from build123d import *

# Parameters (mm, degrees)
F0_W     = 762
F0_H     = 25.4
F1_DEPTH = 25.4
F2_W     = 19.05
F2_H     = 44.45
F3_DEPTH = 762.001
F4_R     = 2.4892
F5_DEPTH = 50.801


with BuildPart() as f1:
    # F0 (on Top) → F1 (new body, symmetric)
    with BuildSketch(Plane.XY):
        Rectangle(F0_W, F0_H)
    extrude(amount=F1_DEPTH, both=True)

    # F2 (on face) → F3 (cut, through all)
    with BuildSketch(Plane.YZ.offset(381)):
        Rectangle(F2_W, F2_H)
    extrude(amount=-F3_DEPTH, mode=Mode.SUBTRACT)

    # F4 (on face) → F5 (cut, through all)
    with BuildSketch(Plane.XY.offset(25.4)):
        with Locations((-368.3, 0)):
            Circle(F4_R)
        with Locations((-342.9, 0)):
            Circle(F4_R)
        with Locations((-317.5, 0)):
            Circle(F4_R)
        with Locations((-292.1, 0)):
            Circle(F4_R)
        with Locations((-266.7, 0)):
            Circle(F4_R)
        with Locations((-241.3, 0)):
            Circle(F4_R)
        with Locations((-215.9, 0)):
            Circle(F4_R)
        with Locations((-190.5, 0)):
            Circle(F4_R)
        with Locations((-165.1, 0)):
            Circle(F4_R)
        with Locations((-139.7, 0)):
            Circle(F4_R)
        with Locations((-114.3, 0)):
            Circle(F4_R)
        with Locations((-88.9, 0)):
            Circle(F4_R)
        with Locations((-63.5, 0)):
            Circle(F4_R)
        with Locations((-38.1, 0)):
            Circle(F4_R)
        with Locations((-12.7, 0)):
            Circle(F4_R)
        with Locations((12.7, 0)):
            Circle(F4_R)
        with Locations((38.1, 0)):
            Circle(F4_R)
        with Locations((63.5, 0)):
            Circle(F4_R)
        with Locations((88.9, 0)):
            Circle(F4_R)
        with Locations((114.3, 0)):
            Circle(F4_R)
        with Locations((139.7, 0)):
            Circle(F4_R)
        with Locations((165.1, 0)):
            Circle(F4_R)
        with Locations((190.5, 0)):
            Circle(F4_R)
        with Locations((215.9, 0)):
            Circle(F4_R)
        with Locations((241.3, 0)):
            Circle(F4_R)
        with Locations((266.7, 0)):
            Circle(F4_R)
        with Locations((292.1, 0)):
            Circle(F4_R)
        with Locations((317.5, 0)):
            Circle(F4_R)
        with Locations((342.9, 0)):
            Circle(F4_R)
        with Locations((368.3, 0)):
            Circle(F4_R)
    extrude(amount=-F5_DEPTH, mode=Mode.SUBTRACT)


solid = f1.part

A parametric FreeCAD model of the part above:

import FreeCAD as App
import Part
import Sketcher
Q = App.Units.Quantity


def add_polygon(sketch, points):
    """Adds a closed chain of lines whose ends are joined by coincident constraints."""
    first, n = sketch.GeometryCount, len(points)
    for a, b in zip(points, points[1:] + points[:1]):
        sketch.addGeometry(Part.LineSegment(App.Vector(*a, 0), App.Vector(*b, 0)), False)
    for i in range(n):
        sketch.addConstraint(Sketcher.Constraint("Coincident", first + i, 2, first + (i + 1) % n, 1))

doc = App.newDocument("Part")
body = doc.addObject("PartDesign::Body", "Body")

sketch1 = body.newObject("Sketcher::SketchObject", "Sketch")
sketch1.AttachmentSupport = (doc.getObject("XY_Plane"), [""])
sketch1.MapMode = "FlatFace"
add_polygon(sketch1, [(-381, 13), (-381, -13), (381, -13), (381, 13)])
sketch1.addConstraint([
    Sketcher.Constraint("Vertical", 0),
    Sketcher.Constraint("Horizontal", 1),
    Sketcher.Constraint("Vertical", 2),
    Sketcher.Constraint("Horizontal", 3),
    Sketcher.Constraint("Symmetric", 0, 2, 2, 2, -1, 1),
    Sketcher.Constraint("DistanceX", 1, 1, 1, 2, Q("30 in")),
    Sketcher.Constraint("DistanceY", 0, 2, 0, 1, Q("1 in")),
])
pad1 = body.newObject("PartDesign::Pad", "Pad")
pad1.Profile = sketch1
pad1.Length = Q("2 in")
pad1.Midplane = True

sketch2 = body.newObject("Sketcher::SketchObject", "Sketch001")
sketch2.AttachmentSupport = (doc.getObject("YZ_Plane"), [""])
sketch2.MapMode = "FlatFace"
sketch2.AttachmentOffset = App.Placement(App.Vector(0, 0, 15 * 25.4), App.Rotation())
add_polygon(sketch2, [(-10, 22), (-10, -22), (10, -22), (10, 22)])
sketch2.addConstraint([
    Sketcher.Constraint("Vertical", 0),
    Sketcher.Constraint("Horizontal", 1),
    Sketcher.Constraint("Vertical", 2),
    Sketcher.Constraint("Horizontal", 3),
    Sketcher.Constraint("Symmetric", 0, 2, 2, 2, -1, 1),
    Sketcher.Constraint("DistanceX", 1, 1, 1, 2, Q("0.75 in")),
    Sketcher.Constraint("DistanceY", 0, 2, 0, 1, Q("1.75 in")),
])
pocket1 = body.newObject("PartDesign::Pocket", "Pocket")
pocket1.Profile = sketch2
pocket1.Type = "ThroughAll"

sketch3 = body.newObject("Sketcher::SketchObject", "Sketch002")
sketch3.AttachmentSupport = (doc.getObject("XY_Plane"), [""])
sketch3.MapMode = "FlatFace"
sketch3.AttachmentOffset = App.Placement(App.Vector(0, 0, 1 * 25.4), App.Rotation())
sketch3.addGeometry([
    Part.Circle(App.Vector(-368.3, 0, 0), App.Vector(0, 0, 1), 2.5),
    Part.Circle(App.Vector(-342.9, 0, 0), App.Vector(0, 0, 1), 2.5),
    Part.Circle(App.Vector(-317.5, 0, 0), App.Vector(0, 0, 1), 2.5),
    Part.Circle(App.Vector(-292.1, 0, 0), App.Vector(0, 0, 1), 2.5),
    Part.Circle(App.Vector(-266.7, 0, 0), App.Vector(0, 0, 1), 2.5),
    Part.Circle(App.Vector(-241.3, 0, 0), App.Vector(0, 0, 1), 2.5),
    Part.Circle(App.Vector(-215.9, 0, 0), App.Vector(0, 0, 1), 2.5),
    Part.Circle(App.Vector(-190.5, 0, 0), App.Vector(0, 0, 1), 2.5),
    Part.Circle(App.Vector(-165.1, 0, 0), App.Vector(0, 0, 1), 2.5),
    Part.Circle(App.Vector(-139.7, 0, 0), App.Vector(0, 0, 1), 2.5),
    Part.Circle(App.Vector(-114.3, 0, 0), App.Vector(0, 0, 1), 2.5),
    Part.Circle(App.Vector(-88.9, 0, 0), App.Vector(0, 0, 1), 2.5),
    Part.Circle(App.Vector(-63.5, 0, 0), App.Vector(0, 0, 1), 2.5),
    Part.Circle(App.Vector(-38.1, 0, 0), App.Vector(0, 0, 1), 2.5),
    Part.Circle(App.Vector(-12.7, 0, 0), App.Vector(0, 0, 1), 2.5),
    Part.Circle(App.Vector(12.7, 0, 0), App.Vector(0, 0, 1), 2.5),
    Part.Circle(App.Vector(38.1, 0, 0), App.Vector(0, 0, 1), 2.5),
    Part.Circle(App.Vector(63.5, 0, 0), App.Vector(0, 0, 1), 2.5),
    Part.Circle(App.Vector(88.9, 0, 0), App.Vector(0, 0, 1), 2.5),
    Part.Circle(App.Vector(114.3, 0, 0), App.Vector(0, 0, 1), 2.5),
    Part.Circle(App.Vector(139.7, 0, 0), App.Vector(0, 0, 1), 2.5),
    Part.Circle(App.Vector(165.1, 0, 0), App.Vector(0, 0, 1), 2.5),
    Part.Circle(App.Vector(190.5, 0, 0), App.Vector(0, 0, 1), 2.5),
    Part.Circle(App.Vector(215.9, 0, 0), App.Vector(0, 0, 1), 2.5),
    Part.Circle(App.Vector(241.3, 0, 0), App.Vector(0, 0, 1), 2.5),
    Part.Circle(App.Vector(266.7, 0, 0), App.Vector(0, 0, 1), 2.5),
    Part.Circle(App.Vector(292.1, 0, 0), App.Vector(0, 0, 1), 2.5),
    Part.Circle(App.Vector(317.5, 0, 0), App.Vector(0, 0, 1), 2.5),
    Part.Circle(App.Vector(342.9, 0, 0), App.Vector(0, 0, 1), 2.5),
    Part.Circle(App.Vector(368.3, 0, 0), App.Vector(0, 0, 1), 2.5),
], False)
sketch3.addConstraint([
    Sketcher.Constraint("Equal", 0, 1),
    Sketcher.Constraint("Equal", 1, 2),
    Sketcher.Constraint("Equal", 2, 3),
    Sketcher.Constraint("Equal", 3, 4),
    Sketcher.Constraint("Equal", 4, 5),
    Sketcher.Constraint("Equal", 5, 6),
    Sketcher.Constraint("Equal", 6, 7),
    Sketcher.Constraint("Equal", 7, 8),
    Sketcher.Constraint("Equal", 8, 9),
    Sketcher.Constraint("Equal", 9, 10),
    Sketcher.Constraint("Equal", 10, 11),
    Sketcher.Constraint("Equal", 11, 12),
    Sketcher.Constraint("Equal", 12, 13),
    Sketcher.Constraint("Equal", 13, 14),
    Sketcher.Constraint("Equal", 14, 15),
    Sketcher.Constraint("Equal", 15, 16),
    Sketcher.Constraint("Equal", 16, 17),
    Sketcher.Constraint("Equal", 17, 18),
    Sketcher.Constraint("Equal", 18, 19),
    Sketcher.Constraint("Equal", 19, 20),
    Sketcher.Constraint("Equal", 20, 21),
    Sketcher.Constraint("Equal", 21, 22),
    Sketcher.Constraint("Equal", 22, 23),
    Sketcher.Constraint("Equal", 23, 24),
    Sketcher.Constraint("Equal", 24, 25),
    Sketcher.Constraint("Equal", 25, 26),
    Sketcher.Constraint("Equal", 26, 27),
    Sketcher.Constraint("Equal", 27, 28),
    Sketcher.Constraint("Equal", 28, 29),
    Sketcher.Constraint("Symmetric", 14, 3, 15, 3, -1, 1),
    Sketcher.Constraint("Symmetric", 13, 3, 16, 3, -1, 1),
    Sketcher.Constraint("Symmetric", 12, 3, 17, 3, -1, 1),
    Sketcher.Constraint("Symmetric", 11, 3, 18, 3, -1, 1),
    Sketcher.Constraint("Symmetric", 10, 3, 19, 3, -1, 1),
    Sketcher.Constraint("Symmetric", 9, 3, 20, 3, -1, 1),
    Sketcher.Constraint("Symmetric", 8, 3, 21, 3, -1, 1),
    Sketcher.Constraint("Symmetric", 7, 3, 22, 3, -1, 1),
    Sketcher.Constraint("Symmetric", 6, 3, 23, 3, -1, 1),
    Sketcher.Constraint("Symmetric", 5, 3, 24, 3, -1, 1),
    Sketcher.Constraint("Symmetric", 4, 3, 25, 3, -1, 1),
    Sketcher.Constraint("Symmetric", 3, 3, 26, 3, -1, 1),
    Sketcher.Constraint("Symmetric", 2, 3, 27, 3, -1, 1),
    Sketcher.Constraint("Symmetric", 1, 3, 28, 3, -1, 1),
    Sketcher.Constraint("Symmetric", 0, 3, 29, 3, -1, 1),
    Sketcher.Constraint("PointOnObject", 0, 3, -1),
    Sketcher.Constraint("PointOnObject", 1, 3, -1),
    Sketcher.Constraint("PointOnObject", 2, 3, -1),
    Sketcher.Constraint("PointOnObject", 3, 3, -1),
    Sketcher.Constraint("PointOnObject", 4, 3, -1),
    Sketcher.Constraint("PointOnObject", 5, 3, -1),
    Sketcher.Constraint("PointOnObject", 6, 3, -1),
    Sketcher.Constraint("PointOnObject", 7, 3, -1),
    Sketcher.Constraint("PointOnObject", 8, 3, -1),
    Sketcher.Constraint("PointOnObject", 9, 3, -1),
    Sketcher.Constraint("PointOnObject", 10, 3, -1),
    Sketcher.Constraint("PointOnObject", 11, 3, -1),
    Sketcher.Constraint("PointOnObject", 12, 3, -1),
    Sketcher.Constraint("PointOnObject", 13, 3, -1),
    Sketcher.Constraint("PointOnObject", 14, 3, -1),
    Sketcher.Constraint("Diameter", 0, Q("0.196 in")),
    Sketcher.Constraint("DistanceX", 0, 3, 1, 3, Q("1 in")),
    Sketcher.Constraint("DistanceX", 1, 3, 2, 3, Q("1 in")),
    Sketcher.Constraint("DistanceX", 2, 3, 3, 3, Q("1 in")),
    Sketcher.Constraint("DistanceX", 3, 3, 4, 3, Q("1 in")),
    Sketcher.Constraint("DistanceX", 4, 3, 5, 3, Q("1 in")),
    Sketcher.Constraint("DistanceX", 5, 3, 6, 3, Q("1 in")),
    Sketcher.Constraint("DistanceX", 6, 3, 7, 3, Q("1 in")),
    Sketcher.Constraint("DistanceX", 7, 3, 8, 3, Q("1 in")),
    Sketcher.Constraint("DistanceX", 8, 3, 9, 3, Q("1 in")),
    Sketcher.Constraint("DistanceX", 9, 3, 10, 3, Q("1 in")),
    Sketcher.Constraint("DistanceX", 10, 3, 11, 3, Q("1 in")),
    Sketcher.Constraint("DistanceX", 11, 3, 12, 3, Q("1 in")),
    Sketcher.Constraint("DistanceX", 12, 3, 13, 3, Q("1 in")),
    Sketcher.Constraint("DistanceX", 13, 3, 14, 3, Q("1 in")),
    Sketcher.Constraint("DistanceX", 14, 3, 15, 3, Q("1 in")),
])
pocket2 = body.newObject("PartDesign::Pocket", "Pocket001")
pocket2.Profile = sketch3
pocket2.Type = "ThroughAll"

doc.recompute()
